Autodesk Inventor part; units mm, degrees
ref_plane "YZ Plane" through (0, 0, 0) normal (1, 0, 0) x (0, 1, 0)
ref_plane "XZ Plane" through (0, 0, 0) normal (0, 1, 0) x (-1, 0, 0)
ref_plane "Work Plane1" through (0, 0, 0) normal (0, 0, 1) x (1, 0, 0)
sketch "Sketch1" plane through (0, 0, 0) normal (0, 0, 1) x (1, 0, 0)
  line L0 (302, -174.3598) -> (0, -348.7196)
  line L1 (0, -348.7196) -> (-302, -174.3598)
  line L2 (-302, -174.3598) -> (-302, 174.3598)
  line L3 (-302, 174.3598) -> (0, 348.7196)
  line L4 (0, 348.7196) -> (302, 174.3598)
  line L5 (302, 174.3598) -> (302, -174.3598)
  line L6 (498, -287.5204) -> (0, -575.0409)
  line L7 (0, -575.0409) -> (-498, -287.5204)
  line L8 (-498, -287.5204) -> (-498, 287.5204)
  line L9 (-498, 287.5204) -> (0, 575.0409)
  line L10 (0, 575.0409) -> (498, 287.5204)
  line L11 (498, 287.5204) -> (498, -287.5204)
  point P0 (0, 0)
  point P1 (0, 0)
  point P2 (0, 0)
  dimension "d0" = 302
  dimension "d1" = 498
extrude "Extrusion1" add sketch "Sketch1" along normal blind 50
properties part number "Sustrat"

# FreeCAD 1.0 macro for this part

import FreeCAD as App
import Part
import Sketcher

V = App.Vector
Q = App.Units.Quantity


def add_polygon(sketch, points):
    """Adds a closed chain of lines whose ends are joined by coincident constraints."""
    first, n = sketch.GeometryCount, len(points)
    for a, b in zip(points, points[1:] + points[:1]):
        sketch.addGeometry(Part.LineSegment(App.Vector(*a, 0), App.Vector(*b, 0)), False)
    for i in range(n):
        sketch.addConstraint(Sketcher.Constraint("Coincident", first + i, 2, first + (i + 1) % n, 1))

doc = App.newDocument("Part")
params = doc.addObject("Spreadsheet::Sheet", "Params")
for row, (alias, value) in enumerate([
    ("pad1_length", "50 mm"),
], start=1):
    params.set(f"A{row}", alias)
    params.set(f"B{row}", "=" + value)
    params.setAlias(f"B{row}", alias)

body = doc.addObject("PartDesign::Body", "Body")

# Sketch on XY plane
sketch1 = body.newObject("Sketcher::SketchObject", "Sketch")
sketch1.AttachmentSupport = (doc.getObject("XY_Plane"), [""])
sketch1.MapMode = "FlatFace"
add_polygon(sketch1, [(0, -575), (498, -288), (498, 288), (0, 575), (-498, 288), (-498, -288)])  # lines 0-5
add_polygon(sketch1, [(302, 174), (302, -174), (0, -349), (-302, -174), (-302, 174), (0, 349)])  # lines 6-11
sketch1.addConstraint([
    Sketcher.Constraint("Vertical", 1),
    Sketcher.Constraint("Vertical", 4),
    Sketcher.Constraint("Vertical", 6),
    Sketcher.Constraint("Vertical", 9),
    Sketcher.Constraint("Symmetric", 0, 2, 3, 2, -1, 1),
    Sketcher.Constraint("Symmetric", 2, 2, 5, 2, -1, 1),
    Sketcher.Constraint("Symmetric", 6, 2, 9, 2, -1, 1),
    Sketcher.Constraint("Symmetric", 7, 2, 10, 2, -1, 1),
    Sketcher.Constraint("PointOnObject", 2, 2, -2),
    Sketcher.Constraint("PointOnObject", 7, 2, -2),
    Sketcher.Constraint("Parallel", 2, 5),
    Sketcher.Constraint("Parallel", 3, 7),
    Sketcher.Constraint("Parallel", 5, 8),
    Sketcher.Constraint("Parallel", 8, 11),
    Sketcher.Constraint("Horizontal", 1, 2, 3, 2),
    Sketcher.Constraint("DistanceX", -1, 1, 0, 2, Q("498 mm")),
    Sketcher.Constraint("DistanceX", -1, 1, 6, 2, Q("302 mm")),
    Sketcher.Constraint("Angle", 0, Q("30 deg")),
    Sketcher.Constraint("DistanceY", 7, 2, 1, 2, Q("636.24 mm")),
    Sketcher.Constraint("DistanceY", 1, 1, 1, 2, Q("575.0408 mm")),
])
pad1 = body.newObject("PartDesign::Pad", "Pad")
pad1.Profile = sketch1
pad1.setExpression("Length", "Params.pad1_length")

doc.recompute()
